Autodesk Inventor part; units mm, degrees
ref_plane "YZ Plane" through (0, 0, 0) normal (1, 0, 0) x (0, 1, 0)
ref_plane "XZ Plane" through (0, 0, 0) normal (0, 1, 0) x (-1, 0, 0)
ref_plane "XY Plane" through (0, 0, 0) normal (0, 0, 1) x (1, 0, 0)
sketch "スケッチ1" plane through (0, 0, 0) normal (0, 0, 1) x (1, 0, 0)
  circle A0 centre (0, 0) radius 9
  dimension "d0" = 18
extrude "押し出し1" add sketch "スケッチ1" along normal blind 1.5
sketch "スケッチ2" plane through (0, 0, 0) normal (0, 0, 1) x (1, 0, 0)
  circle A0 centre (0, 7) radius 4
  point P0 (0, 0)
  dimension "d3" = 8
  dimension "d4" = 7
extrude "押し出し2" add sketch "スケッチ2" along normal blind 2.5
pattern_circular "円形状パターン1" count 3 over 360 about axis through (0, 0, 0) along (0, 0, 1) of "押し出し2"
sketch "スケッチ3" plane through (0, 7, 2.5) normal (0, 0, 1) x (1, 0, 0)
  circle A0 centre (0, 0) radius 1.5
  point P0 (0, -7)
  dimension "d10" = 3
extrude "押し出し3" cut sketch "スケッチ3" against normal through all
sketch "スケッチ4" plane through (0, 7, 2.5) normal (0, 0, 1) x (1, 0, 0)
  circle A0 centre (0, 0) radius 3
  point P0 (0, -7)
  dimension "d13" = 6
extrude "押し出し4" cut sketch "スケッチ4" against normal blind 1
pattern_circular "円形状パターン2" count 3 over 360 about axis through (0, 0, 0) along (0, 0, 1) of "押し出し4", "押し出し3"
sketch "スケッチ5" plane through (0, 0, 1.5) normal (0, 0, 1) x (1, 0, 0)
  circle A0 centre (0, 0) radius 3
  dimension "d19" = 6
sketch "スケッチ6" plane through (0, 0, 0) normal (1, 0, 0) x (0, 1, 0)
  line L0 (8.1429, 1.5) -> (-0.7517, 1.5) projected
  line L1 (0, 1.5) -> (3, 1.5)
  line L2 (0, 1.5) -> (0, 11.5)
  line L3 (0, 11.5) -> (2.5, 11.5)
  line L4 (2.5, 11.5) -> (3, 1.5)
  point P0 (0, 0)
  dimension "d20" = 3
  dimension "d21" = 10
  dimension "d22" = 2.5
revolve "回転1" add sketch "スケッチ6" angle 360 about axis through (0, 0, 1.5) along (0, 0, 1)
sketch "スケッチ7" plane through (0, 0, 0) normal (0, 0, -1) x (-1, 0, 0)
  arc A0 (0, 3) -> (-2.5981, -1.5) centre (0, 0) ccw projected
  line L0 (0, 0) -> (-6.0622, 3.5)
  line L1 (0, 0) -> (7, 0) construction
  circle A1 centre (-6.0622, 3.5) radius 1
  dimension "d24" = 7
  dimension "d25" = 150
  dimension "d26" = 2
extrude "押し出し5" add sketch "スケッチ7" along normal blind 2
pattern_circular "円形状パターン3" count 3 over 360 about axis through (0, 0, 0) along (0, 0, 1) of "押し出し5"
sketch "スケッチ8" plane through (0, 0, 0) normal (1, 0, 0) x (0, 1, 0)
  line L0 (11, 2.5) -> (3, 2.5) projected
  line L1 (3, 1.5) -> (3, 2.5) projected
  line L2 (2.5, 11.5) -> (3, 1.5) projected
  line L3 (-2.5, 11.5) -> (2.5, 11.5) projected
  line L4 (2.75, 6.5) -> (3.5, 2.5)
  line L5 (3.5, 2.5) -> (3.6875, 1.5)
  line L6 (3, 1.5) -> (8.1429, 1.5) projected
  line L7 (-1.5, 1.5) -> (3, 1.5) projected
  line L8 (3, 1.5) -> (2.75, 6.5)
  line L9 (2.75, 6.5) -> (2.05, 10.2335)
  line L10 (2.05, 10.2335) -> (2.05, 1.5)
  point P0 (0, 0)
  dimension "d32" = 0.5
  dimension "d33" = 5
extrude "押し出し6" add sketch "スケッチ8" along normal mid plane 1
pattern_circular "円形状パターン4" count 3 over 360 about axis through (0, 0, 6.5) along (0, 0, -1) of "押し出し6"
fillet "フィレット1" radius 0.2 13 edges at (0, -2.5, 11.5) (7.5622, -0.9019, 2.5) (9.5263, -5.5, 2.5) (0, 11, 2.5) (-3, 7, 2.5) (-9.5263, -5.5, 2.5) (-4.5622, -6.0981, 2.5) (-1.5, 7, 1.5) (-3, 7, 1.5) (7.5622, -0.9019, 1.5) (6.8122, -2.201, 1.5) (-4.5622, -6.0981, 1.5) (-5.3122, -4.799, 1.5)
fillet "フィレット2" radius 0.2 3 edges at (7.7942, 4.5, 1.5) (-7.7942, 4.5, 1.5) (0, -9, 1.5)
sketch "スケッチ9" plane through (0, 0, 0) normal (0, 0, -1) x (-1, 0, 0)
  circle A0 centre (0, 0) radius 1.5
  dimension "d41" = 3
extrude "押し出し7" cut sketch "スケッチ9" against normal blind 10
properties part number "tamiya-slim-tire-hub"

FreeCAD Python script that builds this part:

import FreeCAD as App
import Part
import Sketcher

V = App.Vector
Q = App.Units.Quantity


def edges_at(feature, points):
    """Names of the edges that pass closest to the given points."""
    edges = feature.Shape.Edges
    near = lambda p: min(range(len(edges)), key=lambda i: edges[i].distToShape(Part.Vertex(*p))[0])
    return sorted({f"Edge{near(p) + 1}" for p in points})

doc = App.newDocument("Part")
body = doc.addObject("PartDesign::Body", "Body")

# Sketch on XY plane
sketch1 = body.newObject("Sketcher::SketchObject", "Sketch")
sketch1.AttachmentSupport = (doc.getObject("XY_Plane"), [""])
sketch1.MapMode = "FlatFace"
sketch1.addGeometry(Part.Circle(V(0, 0, 0), V(0, 0, 1), 9), False)
sketch1.addConstraint(Sketcher.Constraint("Coincident", 0, 3, -1, 1))
sketch1.addConstraint(Sketcher.Constraint("Diameter", 0, 18.0))
pad1 = body.newObject("PartDesign::Pad", "Pad")
pad1.Profile = sketch1
pad1.Length = 1.5

# Sketch on XY plane
sketch2 = body.newObject("Sketcher::SketchObject", "Sketch001")
sketch2.AttachmentSupport = (doc.getObject("XY_Plane"), [""])
sketch2.MapMode = "FlatFace"
sketch2.addGeometry(Part.Circle(V(0, 7, 0), V(0, 0, 1), 4), False)
sketch2.addConstraint(Sketcher.Constraint("PointOnObject", 0, 3, -2))
sketch2.addConstraint(Sketcher.Constraint("Diameter", 0, 8.0))
sketch2.addConstraint(Sketcher.Constraint("DistanceY", -1, 1, 0, 3, 7.0))
pad2 = body.newObject("PartDesign::Pad", "Pad001")
pad2.Profile = sketch2
pad2.Length = 2.5
doc.recompute()

polarpattern = body.newObject("PartDesign::PolarPattern", "PolarPattern")
polarpattern.Originals = [pad2]
polarpattern.Axis = (doc.getObject("Z_Axis"), [""])
polarpattern.Angle = 360
polarpattern.Occurrences = 3
body.Tip = polarpattern

# Sketch on XY plane
sketch3 = body.newObject("Sketcher::SketchObject", "Sketch002")
sketch3.AttachmentSupport = (doc.getObject("XY_Plane"), [""])
sketch3.MapMode = "FlatFace"
sketch3.AttachmentOffset = App.Placement(V(0, 0, 2.5), App.Rotation())
sketch3.addGeometry(Part.Circle(V(0, 7, 0), V(0, 0, 1), 1.5), False)
sketch3.addConstraint(Sketcher.Constraint("PointOnObject", 0, 3, -2))
sketch3.addConstraint(Sketcher.Constraint("Diameter", 0, 3.0))
sketch3.addConstraint(Sketcher.Constraint("DistanceY", -1, 1, 0, 3, 7.0))
pocket1 = body.newObject("PartDesign::Pocket", "Pocket")
pocket1.Profile = sketch3
pocket1.Type = "ThroughAll"

# Sketch on XY plane
sketch4 = body.newObject("Sketcher::SketchObject", "Sketch003")
sketch4.AttachmentSupport = (doc.getObject("XY_Plane"), [""])
sketch4.MapMode = "FlatFace"
sketch4.AttachmentOffset = App.Placement(V(0, 0, 2.5), App.Rotation())
sketch4.addGeometry(Part.Circle(V(0, 7, 0), V(0, 0, 1), 3), False)
sketch4.addConstraint(Sketcher.Constraint("PointOnObject", 0, 3, -2))
sketch4.addConstraint(Sketcher.Constraint("Diameter", 0, 6.0))
sketch4.addConstraint(Sketcher.Constraint("DistanceY", -1, 1, 0, 3, 7.0))
pocket2 = body.newObject("PartDesign::Pocket", "Pocket001")
pocket2.Profile = sketch4
pocket2.Length = 1
doc.recompute()

polarpattern2 = body.newObject("PartDesign::PolarPattern", "PolarPattern001")
polarpattern2.Originals = [pocket2, pocket1]
polarpattern2.Axis = (doc.getObject("Z_Axis"), [""])
polarpattern2.Angle = 360
polarpattern2.Occurrences = 3
body.Tip = polarpattern2

# Sketch on YZ plane
sketch5 = body.newObject("Sketcher::SketchObject", "Sketch004")
sketch5.AttachmentSupport = (doc.getObject("YZ_Plane"), [""])
sketch5.MapMode = "FlatFace"
sketch5.addGeometry(Part.LineSegment(V(0, 1.5, 0), V(3, 1.5, 0)), False)
sketch5.addGeometry(Part.LineSegment(V(3, 1.5, 0), V(2.5, 11.5, 0)), False)
sketch5.addGeometry(Part.LineSegment(V(2.5, 11.5, 0), V(0, 11.5, 0)), False)
sketch5.addGeometry(Part.LineSegment(V(0, 11.5, 0), V(0, 1.5, 0)), False)
sketch5.addConstraint(Sketcher.Constraint("Coincident", 0, 2, 1, 1))
sketch5.addConstraint(Sketcher.Constraint("Coincident", 1, 2, 2, 1))
sketch5.addConstraint(Sketcher.Constraint("Coincident", 2, 2, 3, 1))
sketch5.addConstraint(Sketcher.Constraint("Coincident", 3, 2, 0, 1))
sketch5.addConstraint(Sketcher.Constraint("Horizontal", 0))
sketch5.addConstraint(Sketcher.Constraint("Horizontal", 2))
sketch5.addConstraint(Sketcher.Constraint("Vertical", 3))
sketch5.addConstraint(Sketcher.Constraint("PointOnObject", 2, 2, -2))
sketch5.addConstraint(Sketcher.Constraint("DistanceX", 0, 1, 0, 2, 3.0))
sketch5.addConstraint(Sketcher.Constraint("DistanceY", 3, 2, 3, 1, 10.0))
sketch5.addConstraint(Sketcher.Constraint("DistanceX", 2, 2, 2, 1, 2.5))
sketch5.addConstraint(Sketcher.Constraint("DistanceY", -1, 1, 0, 2, 1.5))
revolution = body.newObject("PartDesign::Revolution", "Revolution")
revolution.Profile = sketch5
revolution.ReferenceAxis = (sketch5, ["V_Axis"])
revolution.Angle = 360

# Sketch on XY plane
sketch6 = body.newObject("Sketcher::SketchObject", "Sketch005")
sketch6.AttachmentSupport = (doc.getObject("XY_Plane"), [""])
sketch6.MapMode = "FlatFace"
sketch6.addGeometry(Part.Circle(V(6.1, 3.5, 0), V(0, 0, 1), 1), False)
sketch6.addConstraint(Sketcher.Constraint("Diameter", 0, 2.0))
sketch6.addConstraint(Sketcher.Constraint("DistanceY", -1, 1, 0, 3, 3.5))
sketch6.addConstraint(Sketcher.Constraint("DistanceX", -1, 1, 0, 3, 6.0622))
pad3 = body.newObject("PartDesign::Pad", "Pad002")
pad3.Profile = sketch6
pad3.Length = 2
pad3.Reversed = True
doc.recompute()

polarpattern3 = body.newObject("PartDesign::PolarPattern", "PolarPattern002")
polarpattern3.Originals = [pad3]
polarpattern3.Axis = (doc.getObject("Z_Axis"), [""])
polarpattern3.Angle = 360
polarpattern3.Occurrences = 3
body.Tip = polarpattern3

# Sketch on YZ plane
sketch7 = body.newObject("Sketcher::SketchObject", "Sketch006")
sketch7.AttachmentSupport = (doc.getObject("YZ_Plane"), [""])
sketch7.MapMode = "FlatFace"
sketch7.addGeometry(Part.LineSegment(V(3.7, 1.5, 0), V(2.8, 6.5, 0)), False)
sketch7.addGeometry(Part.LineSegment(V(2.8, 6.5, 0), V(2, 10.2, 0)), False)
sketch7.addGeometry(Part.LineSegment(V(2, 10.2, 0), V(2, 1.5, 0)), False)
sketch7.addGeometry(Part.LineSegment(V(2, 1.5, 0), V(3.7, 1.5, 0)), False)
sketch7.addConstraint(Sketcher.Constraint("Coincident", 0, 2, 1, 1))
sketch7.addConstraint(Sketcher.Constraint("Coincident", 1, 2, 2, 1))
sketch7.addConstraint(Sketcher.Constraint("Coincident", 2, 2, 3, 1))
sketch7.addConstraint(Sketcher.Constraint("Coincident", 3, 2, 0, 1))
sketch7.addConstraint(Sketcher.Constraint("Vertical", 2))
sketch7.addConstraint(Sketcher.Constraint("Horizontal", 3))
sketch7.addConstraint(Sketcher.Constraint("Parallel", 0, 1))
sketch7.addConstraint(Sketcher.Constraint("DistanceY", 2, 2, 0, 2, 5.0))
sketch7.addConstraint(Sketcher.Constraint("DistanceY", -1, 1, 0, 2, 6.5))
sketch7.addConstraint(Sketcher.Constraint("Angle", 0, Q("100.6197 deg")))
sketch7.addConstraint(Sketcher.Constraint("DistanceX", 1, 2, 0, 2, 0.7))
sketch7.addConstraint(Sketcher.Constraint("DistanceX", -1, 1, 0, 2, 2.75))
pad4 = body.newObject("PartDesign::Pad", "Pad003")
pad4.Profile = sketch7
pad4.Length = 1
pad4.Midplane = True
doc.recompute()

polarpattern4 = body.newObject("PartDesign::PolarPattern", "PolarPattern003")
polarpattern4.Originals = [pad4]
polarpattern4.Axis = (doc.getObject("Z_Axis"), [""])
polarpattern4.Angle = 360
polarpattern4.Occurrences = 3
body.Tip = polarpattern4
doc.recompute()

fillet = body.newObject("PartDesign::Fillet", "Fillet")
fillet.Base = (polarpattern4, edges_at(polarpattern4, [
    (0, -2.5, 11.5),
    (7.562, -0.902, 2.5),
    (9.526, -5.5, 2.5),
    (0, 11, 2.5),
    (-3, 7, 2.5),
    (-9.526, -5.5, 2.5),
    (-4.562, -6.098, 2.5),
    (-1.5, 7, 1.5),
    (-3, 7, 1.5),
    (7.562, -0.902, 1.5),
    (6.812, -2.201, 1.5),
    (-4.562, -6.098, 1.5),
    (-5.312, -4.799, 1.5),
]))
fillet.Radius = 0.2
doc.recompute()

fillet2 = body.newObject("PartDesign::Fillet", "Fillet001")
fillet2.Base = (fillet, edges_at(fillet, [(7.794, 4.5, 1.5), (-7.794, 4.5, 1.5), (0, -9, 1.5)]))
fillet2.Radius = 0.2

# Sketch on XY plane
sketch8 = body.newObject("Sketcher::SketchObject", "Sketch007")
sketch8.AttachmentSupport = (doc.getObject("XY_Plane"), [""])
sketch8.MapMode = "FlatFace"
sketch8.addGeometry(Part.Circle(V(0, 0, 0), V(0, 0, 1), 1.5), False)
sketch8.addConstraint(Sketcher.Constraint("Coincident", 0, 3, -1, 1))
sketch8.addConstraint(Sketcher.Constraint("Diameter", 0, 3.0))
pocket3 = body.newObject("PartDesign::Pocket", "Pocket002")
pocket3.Profile = sketch8
pocket3.Length = 10
pocket3.Reversed = True

doc.recompute()
